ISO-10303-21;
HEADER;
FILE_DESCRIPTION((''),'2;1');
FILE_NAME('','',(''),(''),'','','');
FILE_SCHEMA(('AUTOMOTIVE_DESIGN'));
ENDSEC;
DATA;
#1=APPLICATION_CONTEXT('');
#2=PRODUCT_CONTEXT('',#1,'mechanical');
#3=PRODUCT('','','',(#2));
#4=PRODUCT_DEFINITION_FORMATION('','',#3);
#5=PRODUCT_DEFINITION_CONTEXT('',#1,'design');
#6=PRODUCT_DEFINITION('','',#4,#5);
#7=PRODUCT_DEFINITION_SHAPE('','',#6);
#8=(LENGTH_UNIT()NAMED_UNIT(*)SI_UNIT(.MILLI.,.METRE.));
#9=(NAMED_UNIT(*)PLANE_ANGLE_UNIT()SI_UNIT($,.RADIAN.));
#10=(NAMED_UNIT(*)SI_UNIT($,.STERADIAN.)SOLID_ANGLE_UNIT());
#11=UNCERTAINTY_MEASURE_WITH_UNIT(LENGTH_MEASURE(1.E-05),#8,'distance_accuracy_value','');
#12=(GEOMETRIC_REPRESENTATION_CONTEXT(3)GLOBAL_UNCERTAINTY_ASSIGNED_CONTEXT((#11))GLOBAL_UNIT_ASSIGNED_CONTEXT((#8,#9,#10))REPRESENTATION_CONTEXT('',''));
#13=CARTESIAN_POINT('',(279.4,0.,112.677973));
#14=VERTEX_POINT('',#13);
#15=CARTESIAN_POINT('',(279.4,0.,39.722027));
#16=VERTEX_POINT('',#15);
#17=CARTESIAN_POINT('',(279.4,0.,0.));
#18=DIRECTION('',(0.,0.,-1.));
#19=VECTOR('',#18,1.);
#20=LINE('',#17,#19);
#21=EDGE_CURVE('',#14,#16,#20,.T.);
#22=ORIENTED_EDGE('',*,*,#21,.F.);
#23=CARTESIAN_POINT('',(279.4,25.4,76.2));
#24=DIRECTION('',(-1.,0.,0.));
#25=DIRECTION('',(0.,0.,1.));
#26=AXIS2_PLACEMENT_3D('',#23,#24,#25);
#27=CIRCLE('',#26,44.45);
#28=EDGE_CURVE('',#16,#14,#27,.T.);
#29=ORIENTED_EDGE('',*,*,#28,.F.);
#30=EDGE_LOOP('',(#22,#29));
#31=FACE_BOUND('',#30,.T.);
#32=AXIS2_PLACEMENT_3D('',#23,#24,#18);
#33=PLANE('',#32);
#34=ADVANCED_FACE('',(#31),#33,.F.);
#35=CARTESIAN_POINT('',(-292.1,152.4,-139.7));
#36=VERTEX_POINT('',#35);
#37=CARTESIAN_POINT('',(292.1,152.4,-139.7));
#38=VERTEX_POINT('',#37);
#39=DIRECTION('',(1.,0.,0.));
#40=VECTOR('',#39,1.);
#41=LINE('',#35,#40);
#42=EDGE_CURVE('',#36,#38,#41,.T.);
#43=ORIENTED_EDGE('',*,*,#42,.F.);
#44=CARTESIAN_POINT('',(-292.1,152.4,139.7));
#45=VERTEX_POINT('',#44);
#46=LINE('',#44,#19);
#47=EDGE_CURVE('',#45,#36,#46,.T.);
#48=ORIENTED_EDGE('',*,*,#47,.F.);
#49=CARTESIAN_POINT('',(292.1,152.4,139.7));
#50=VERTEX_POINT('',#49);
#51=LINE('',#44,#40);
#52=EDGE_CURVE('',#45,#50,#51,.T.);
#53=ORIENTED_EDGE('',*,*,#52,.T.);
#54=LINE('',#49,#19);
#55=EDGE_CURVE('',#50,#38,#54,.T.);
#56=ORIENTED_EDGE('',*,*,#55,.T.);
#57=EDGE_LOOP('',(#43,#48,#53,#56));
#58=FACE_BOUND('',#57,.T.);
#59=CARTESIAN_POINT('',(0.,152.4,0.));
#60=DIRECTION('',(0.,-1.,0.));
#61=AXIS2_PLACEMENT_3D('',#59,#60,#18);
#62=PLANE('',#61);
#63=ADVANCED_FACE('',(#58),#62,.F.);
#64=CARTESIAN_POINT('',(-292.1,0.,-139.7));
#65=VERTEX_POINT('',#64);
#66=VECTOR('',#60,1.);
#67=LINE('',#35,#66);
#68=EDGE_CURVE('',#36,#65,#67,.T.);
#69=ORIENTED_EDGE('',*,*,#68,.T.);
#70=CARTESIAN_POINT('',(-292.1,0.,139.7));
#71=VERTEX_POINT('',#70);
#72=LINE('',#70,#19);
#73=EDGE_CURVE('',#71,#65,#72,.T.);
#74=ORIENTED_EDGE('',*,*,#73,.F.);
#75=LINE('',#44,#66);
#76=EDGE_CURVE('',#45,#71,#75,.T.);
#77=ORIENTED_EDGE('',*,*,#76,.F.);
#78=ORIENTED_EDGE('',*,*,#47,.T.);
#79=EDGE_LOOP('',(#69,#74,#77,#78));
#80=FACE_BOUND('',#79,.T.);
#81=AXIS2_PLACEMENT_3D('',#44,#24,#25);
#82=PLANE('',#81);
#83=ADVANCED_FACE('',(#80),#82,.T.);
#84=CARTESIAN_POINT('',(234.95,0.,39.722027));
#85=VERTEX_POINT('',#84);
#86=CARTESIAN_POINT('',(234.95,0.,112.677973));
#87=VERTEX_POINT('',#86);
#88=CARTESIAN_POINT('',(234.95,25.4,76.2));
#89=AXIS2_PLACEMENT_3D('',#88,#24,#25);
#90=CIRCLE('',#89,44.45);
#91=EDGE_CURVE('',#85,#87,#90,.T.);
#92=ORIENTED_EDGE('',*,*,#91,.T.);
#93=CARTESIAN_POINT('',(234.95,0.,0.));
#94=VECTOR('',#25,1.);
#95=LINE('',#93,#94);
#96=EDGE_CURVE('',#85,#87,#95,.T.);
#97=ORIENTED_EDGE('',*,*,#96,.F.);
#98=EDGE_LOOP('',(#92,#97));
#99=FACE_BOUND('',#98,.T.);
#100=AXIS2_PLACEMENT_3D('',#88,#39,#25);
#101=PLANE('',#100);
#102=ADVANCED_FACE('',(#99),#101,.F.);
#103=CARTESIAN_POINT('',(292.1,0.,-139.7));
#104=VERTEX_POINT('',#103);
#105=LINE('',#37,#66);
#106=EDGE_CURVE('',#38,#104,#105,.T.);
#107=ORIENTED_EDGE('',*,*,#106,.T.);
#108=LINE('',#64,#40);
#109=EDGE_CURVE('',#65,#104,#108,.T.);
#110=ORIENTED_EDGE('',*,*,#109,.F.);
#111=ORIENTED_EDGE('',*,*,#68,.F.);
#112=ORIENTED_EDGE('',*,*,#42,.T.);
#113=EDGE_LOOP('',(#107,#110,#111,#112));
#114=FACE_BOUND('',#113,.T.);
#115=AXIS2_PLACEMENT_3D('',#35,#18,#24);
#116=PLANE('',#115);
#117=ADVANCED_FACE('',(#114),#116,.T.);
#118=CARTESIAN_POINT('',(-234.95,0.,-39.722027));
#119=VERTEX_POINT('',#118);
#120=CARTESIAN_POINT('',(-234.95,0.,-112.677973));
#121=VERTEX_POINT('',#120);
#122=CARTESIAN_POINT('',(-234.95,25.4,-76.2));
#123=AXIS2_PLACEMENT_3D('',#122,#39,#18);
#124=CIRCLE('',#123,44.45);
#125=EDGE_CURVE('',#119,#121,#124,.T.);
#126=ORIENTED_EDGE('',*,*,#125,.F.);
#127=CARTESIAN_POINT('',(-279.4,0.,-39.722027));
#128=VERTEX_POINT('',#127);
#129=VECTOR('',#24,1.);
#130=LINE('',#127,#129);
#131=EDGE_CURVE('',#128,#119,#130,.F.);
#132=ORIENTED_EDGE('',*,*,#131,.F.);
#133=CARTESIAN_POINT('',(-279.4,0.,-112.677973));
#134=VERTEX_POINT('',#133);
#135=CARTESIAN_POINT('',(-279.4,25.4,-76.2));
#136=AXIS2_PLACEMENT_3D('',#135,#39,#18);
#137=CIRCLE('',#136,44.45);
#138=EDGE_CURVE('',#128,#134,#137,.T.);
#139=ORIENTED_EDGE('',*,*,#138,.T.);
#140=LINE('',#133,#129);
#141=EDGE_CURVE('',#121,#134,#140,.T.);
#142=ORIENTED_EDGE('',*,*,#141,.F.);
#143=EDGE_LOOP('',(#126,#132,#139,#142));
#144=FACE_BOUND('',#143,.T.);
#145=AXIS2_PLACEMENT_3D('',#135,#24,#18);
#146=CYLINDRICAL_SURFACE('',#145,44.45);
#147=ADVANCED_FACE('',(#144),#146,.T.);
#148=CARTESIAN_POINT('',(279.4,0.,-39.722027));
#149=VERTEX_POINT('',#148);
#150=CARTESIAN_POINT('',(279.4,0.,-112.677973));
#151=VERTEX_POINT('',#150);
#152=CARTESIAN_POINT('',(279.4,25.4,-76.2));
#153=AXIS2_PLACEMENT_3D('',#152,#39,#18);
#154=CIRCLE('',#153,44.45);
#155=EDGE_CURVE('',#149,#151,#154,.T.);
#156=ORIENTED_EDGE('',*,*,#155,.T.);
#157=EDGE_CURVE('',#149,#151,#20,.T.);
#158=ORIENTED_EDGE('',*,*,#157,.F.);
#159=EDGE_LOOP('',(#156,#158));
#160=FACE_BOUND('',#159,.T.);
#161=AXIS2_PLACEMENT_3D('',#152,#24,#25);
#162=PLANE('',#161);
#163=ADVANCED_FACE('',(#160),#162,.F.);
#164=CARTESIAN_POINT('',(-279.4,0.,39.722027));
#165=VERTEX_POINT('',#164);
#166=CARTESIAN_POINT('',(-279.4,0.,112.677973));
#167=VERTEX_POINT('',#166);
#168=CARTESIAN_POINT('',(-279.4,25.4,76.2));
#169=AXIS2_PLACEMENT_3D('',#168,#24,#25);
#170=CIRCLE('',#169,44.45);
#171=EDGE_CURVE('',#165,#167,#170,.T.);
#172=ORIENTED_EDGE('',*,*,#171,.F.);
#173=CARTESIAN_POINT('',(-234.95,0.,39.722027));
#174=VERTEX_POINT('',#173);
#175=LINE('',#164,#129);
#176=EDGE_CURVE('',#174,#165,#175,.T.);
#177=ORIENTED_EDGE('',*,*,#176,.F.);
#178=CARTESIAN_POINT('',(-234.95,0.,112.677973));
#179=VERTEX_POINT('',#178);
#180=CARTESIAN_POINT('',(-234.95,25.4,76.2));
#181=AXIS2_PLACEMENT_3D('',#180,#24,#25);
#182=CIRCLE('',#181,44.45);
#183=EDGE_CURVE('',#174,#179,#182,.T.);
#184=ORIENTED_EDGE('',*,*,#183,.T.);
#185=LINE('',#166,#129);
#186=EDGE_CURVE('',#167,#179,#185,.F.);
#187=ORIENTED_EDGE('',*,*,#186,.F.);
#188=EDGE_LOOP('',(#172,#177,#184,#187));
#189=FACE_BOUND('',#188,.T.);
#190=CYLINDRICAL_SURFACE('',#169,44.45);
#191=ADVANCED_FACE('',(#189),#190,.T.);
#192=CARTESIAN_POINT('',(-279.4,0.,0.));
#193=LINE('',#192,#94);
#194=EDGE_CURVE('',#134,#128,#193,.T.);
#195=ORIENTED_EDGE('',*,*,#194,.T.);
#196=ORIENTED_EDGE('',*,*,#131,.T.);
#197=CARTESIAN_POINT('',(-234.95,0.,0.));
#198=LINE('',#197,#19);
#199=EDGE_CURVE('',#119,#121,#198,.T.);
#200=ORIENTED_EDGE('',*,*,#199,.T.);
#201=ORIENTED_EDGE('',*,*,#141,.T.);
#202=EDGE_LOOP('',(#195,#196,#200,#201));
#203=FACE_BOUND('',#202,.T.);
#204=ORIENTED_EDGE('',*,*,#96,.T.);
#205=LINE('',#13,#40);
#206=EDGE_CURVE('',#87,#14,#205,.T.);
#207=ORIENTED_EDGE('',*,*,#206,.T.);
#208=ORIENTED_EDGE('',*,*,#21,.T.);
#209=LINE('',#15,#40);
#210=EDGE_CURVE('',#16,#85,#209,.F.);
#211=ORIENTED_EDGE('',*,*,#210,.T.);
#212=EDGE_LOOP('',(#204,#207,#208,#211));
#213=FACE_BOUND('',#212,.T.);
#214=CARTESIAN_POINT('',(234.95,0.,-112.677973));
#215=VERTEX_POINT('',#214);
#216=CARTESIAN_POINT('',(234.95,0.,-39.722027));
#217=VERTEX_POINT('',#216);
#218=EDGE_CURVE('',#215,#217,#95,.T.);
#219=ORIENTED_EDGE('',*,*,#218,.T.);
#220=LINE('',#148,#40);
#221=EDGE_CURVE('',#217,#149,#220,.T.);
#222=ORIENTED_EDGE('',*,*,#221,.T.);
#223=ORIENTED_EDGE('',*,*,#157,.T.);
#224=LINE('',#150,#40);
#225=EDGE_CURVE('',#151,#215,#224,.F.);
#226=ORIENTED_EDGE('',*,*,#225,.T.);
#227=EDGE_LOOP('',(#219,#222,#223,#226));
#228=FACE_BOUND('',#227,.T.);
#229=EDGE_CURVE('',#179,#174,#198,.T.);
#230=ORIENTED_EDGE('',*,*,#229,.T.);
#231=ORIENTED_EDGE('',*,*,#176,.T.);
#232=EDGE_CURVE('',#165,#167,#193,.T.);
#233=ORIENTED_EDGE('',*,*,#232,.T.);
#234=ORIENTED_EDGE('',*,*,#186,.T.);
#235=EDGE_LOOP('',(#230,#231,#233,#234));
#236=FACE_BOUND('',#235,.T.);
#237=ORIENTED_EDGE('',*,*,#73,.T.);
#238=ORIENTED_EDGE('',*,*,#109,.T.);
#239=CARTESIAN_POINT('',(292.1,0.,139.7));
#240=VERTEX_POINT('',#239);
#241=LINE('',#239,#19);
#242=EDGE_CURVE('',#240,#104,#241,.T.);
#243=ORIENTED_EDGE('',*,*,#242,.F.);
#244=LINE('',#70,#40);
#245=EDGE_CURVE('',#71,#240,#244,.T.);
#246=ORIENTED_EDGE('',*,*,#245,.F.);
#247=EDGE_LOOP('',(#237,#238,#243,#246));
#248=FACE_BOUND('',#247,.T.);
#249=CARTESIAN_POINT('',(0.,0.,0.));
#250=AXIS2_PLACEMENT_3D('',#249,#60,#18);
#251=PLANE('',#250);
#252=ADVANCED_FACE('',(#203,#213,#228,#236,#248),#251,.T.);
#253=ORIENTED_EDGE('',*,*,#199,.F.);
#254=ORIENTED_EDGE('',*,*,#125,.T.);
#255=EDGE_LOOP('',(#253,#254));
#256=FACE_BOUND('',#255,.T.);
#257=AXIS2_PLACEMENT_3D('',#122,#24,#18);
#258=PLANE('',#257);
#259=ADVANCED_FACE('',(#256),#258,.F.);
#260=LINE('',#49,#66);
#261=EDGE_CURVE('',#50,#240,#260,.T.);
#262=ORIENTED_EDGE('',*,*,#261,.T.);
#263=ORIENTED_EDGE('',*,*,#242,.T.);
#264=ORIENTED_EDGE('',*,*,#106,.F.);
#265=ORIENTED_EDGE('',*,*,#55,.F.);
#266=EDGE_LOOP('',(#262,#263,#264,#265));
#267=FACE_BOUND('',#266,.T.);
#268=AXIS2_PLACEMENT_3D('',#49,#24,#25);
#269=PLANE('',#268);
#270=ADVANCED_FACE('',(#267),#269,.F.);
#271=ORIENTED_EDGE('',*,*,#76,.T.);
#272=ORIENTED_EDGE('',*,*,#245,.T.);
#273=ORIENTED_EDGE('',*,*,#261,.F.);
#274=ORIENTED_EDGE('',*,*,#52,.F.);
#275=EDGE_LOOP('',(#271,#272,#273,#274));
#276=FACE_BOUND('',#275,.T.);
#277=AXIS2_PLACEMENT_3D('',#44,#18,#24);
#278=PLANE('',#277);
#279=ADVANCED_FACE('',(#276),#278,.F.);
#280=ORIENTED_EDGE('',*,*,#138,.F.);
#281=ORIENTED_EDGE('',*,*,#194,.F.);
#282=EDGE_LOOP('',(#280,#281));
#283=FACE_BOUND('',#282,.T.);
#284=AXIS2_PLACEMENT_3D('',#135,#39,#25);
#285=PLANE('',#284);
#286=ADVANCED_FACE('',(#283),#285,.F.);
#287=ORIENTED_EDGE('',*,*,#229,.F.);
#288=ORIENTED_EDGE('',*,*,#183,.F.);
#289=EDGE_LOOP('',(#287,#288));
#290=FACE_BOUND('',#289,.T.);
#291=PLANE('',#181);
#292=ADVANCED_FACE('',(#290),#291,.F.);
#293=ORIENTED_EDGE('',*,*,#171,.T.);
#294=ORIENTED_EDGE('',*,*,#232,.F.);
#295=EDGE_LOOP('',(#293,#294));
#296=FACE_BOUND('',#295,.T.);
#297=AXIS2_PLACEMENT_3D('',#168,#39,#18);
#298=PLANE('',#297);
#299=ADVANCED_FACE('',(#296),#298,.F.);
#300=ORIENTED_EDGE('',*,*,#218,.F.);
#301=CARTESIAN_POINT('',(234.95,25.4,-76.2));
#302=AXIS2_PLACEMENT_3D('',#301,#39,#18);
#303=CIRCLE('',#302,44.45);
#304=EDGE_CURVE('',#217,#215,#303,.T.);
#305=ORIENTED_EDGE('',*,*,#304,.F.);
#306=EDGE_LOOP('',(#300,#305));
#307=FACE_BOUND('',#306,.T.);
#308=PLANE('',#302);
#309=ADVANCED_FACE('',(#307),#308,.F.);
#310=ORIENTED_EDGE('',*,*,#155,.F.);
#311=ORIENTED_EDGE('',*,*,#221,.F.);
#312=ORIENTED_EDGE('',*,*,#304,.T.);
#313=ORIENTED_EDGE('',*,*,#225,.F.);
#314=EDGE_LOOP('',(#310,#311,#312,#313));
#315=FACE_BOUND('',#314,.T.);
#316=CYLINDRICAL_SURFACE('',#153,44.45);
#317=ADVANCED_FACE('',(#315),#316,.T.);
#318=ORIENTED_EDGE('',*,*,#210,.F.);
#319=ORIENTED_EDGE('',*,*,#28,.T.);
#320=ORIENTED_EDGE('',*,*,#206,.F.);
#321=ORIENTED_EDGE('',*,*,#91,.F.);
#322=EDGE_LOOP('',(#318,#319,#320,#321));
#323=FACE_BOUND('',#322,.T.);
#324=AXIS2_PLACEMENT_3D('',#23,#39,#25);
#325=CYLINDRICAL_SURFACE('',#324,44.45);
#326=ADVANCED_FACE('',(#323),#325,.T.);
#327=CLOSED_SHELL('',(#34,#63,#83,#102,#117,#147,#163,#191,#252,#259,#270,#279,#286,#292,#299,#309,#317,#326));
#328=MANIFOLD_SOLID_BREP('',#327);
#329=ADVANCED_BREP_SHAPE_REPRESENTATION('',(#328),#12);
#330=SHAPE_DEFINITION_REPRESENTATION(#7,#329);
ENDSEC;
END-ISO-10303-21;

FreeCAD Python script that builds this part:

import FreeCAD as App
import Part
import Sketcher
from FreeCAD import Vector
Q = App.Units.Quantity

doc = App.newDocument("Part")
body = doc.addObject("PartDesign::Body", "Body")

sketch1 = body.newObject("Sketcher::SketchObject", "Sketch")
sketch1.AttachmentSupport = (doc.getObject("XZ_Plane"), [""])
sketch1.MapMode = "FlatFace"
sketch1.addGeometry([
    Part.LineSegment(Vector(-292, -140, 0), Vector(-292, 140, 0)),
    Part.LineSegment(Vector(-292, 140, 0), Vector(292, 140, 0)),
    Part.LineSegment(Vector(292, 140, 0), Vector(292, -140, 0)),
    Part.LineSegment(Vector(292, -140, 0), Vector(-292, -140, 0)),
], False)
sketch1.addConstraint([
    Sketcher.Constraint("Coincident", 0, 2, 1, 1),
    Sketcher.Constraint("Coincident", 1, 2, 2, 1),
    Sketcher.Constraint("Coincident", 2, 2, 3, 1),
    Sketcher.Constraint("Coincident", 3, 2, 0, 1),
    Sketcher.Constraint("Vertical", 0),
    Sketcher.Constraint("Horizontal", 1),
    Sketcher.Constraint("Vertical", 2),
    Sketcher.Constraint("Horizontal", 3),
    Sketcher.Constraint("Symmetric", 0, 2, 2, 2, -1, 1),
    Sketcher.Constraint("DistanceX", 1, 1, 1, 2, Q("23 in")),
    Sketcher.Constraint("DistanceY", 0, 1, 0, 2, Q("11 in")),
])
pad1 = body.newObject("PartDesign::Pad", "Pad")
pad1.Profile = sketch1
pad1.Length = Q("6 in")
pad1.Reversed = True

sketch2 = body.newObject("Sketcher::SketchObject", "Sketch001")
sketch2.AttachmentSupport = (doc.getObject("XZ_Plane"), [""])
sketch2.MapMode = "FlatFace"
sketch2.AttachmentOffset = App.Placement(Vector(0, 0, -1 * 25.4), App.Rotation())
sketch2.addGeometry([
    Part.LineSegment(Vector(-235, 76, 0), Vector(-235, 121, 0)),
    Part.LineSegment(Vector(-235, 121, 0), Vector(-279, 121, 0)),
    Part.LineSegment(Vector(-279, 121, 0), Vector(-279, 76, 0)),
    Part.LineSegment(Vector(-279, 76, 0), Vector(-235, 76, 0)),
], False)
sketch2.addGeometry(Part.LineSegment(Vector(-279, 76, 0), Vector(-235, 76, 0)), True)
sketch2.addConstraint([
    Sketcher.Constraint("Coincident", 0, 2, 1, 1),
    Sketcher.Constraint("Coincident", 1, 2, 2, 1),
    Sketcher.Constraint("Coincident", 2, 2, 3, 1),
    Sketcher.Constraint("Coincident", 3, 2, 0, 1),
    Sketcher.Constraint("Vertical", 0),
    Sketcher.Constraint("Horizontal", 1),
    Sketcher.Constraint("Vertical", 2),
    Sketcher.Constraint("Horizontal", 3),
    Sketcher.Constraint("Horizontal", 4),
    Sketcher.Constraint("Coincident", 4, 1, 2, 2),
    Sketcher.Constraint("Vertical", 0, 2, 4, 2),
    Sketcher.Constraint("Equal", 4, 0),
    Sketcher.Constraint("DistanceX", 1, 2, -1, 1, Q("11 in")),
    Sketcher.Constraint("DistanceY", -1, 1, 2, 2, Q("3 in")),
    Sketcher.Constraint("DistanceX", 1, 2, 1, 1, Q("1.75 in")),
])
revolution = body.newObject("PartDesign::Revolution", "Revolution")
revolution.Profile = sketch2
revolution.ReferenceAxis = (sketch2, ["Axis0"])
revolution.Angle = 360
doc.recompute()

mirrored = body.newObject("PartDesign::Mirrored", "Mirrored")
mirrored.Originals = [revolution]
mirrored.MirrorPlane = (doc.getObject("XY_Plane"), [""])
body.Tip = mirrored
doc.recompute()

mirrored2 = body.newObject("PartDesign::Mirrored", "Mirrored001")
mirrored2.Originals = [revolution]
mirrored2.MirrorPlane = (doc.getObject("YZ_Plane"), [""])
body.Tip = mirrored2

sketch3 = body.newObject("Sketcher::SketchObject", "Sketch002")
sketch3.AttachmentSupport = (doc.getObject("XZ_Plane"), [""])
sketch3.MapMode = "FlatFace"
sketch3.AttachmentOffset = App.Placement(Vector(0, 0, -1 * 25.4), App.Rotation())
sketch3.addGeometry([
    Part.LineSegment(Vector(235, -76, 0), Vector(235, -121, 0)),
    Part.LineSegment(Vector(235, -121, 0), Vector(279, -121, 0)),
    Part.LineSegment(Vector(279, -121, 0), Vector(279, -76, 0)),
    Part.LineSegment(Vector(279, -76, 0), Vector(235, -76, 0)),
], False)
sketch3.addGeometry(Part.LineSegment(Vector(279, -76, 0), Vector(235, -76, 0)), True)
sketch3.addConstraint([
    Sketcher.Constraint("Coincident", 0, 2, 1, 1),
    Sketcher.Constraint("Coincident", 1, 2, 2, 1),
    Sketcher.Constraint("Coincident", 2, 2, 3, 1),
    Sketcher.Constraint("Coincident", 3, 2, 0, 1),
    Sketcher.Constraint("Vertical", 0),
    Sketcher.Constraint("Horizontal", 1),
    Sketcher.Constraint("Vertical", 2),
    Sketcher.Constraint("Horizontal", 3),
    Sketcher.Constraint("Horizontal", 4),
    Sketcher.Constraint("Coincident", 4, 1, 2, 2),
    Sketcher.Constraint("Vertical", 0, 2, 4, 2),
    Sketcher.Constraint("Equal", 4, 0),
    Sketcher.Constraint("DistanceX", -1, 1, 1, 2, Q("11 in")),
    Sketcher.Constraint("DistanceY", 2, 2, -1, 1, Q("3 in")),
    Sketcher.Constraint("DistanceX", 1, 1, 1, 2, Q("1.75 in")),
])
revolution2 = body.newObject("PartDesign::Revolution", "Revolution001")
revolution2.Profile = sketch3
revolution2.ReferenceAxis = (sketch3, ["Axis0"])
revolution2.Angle = 360

doc.recompute()
